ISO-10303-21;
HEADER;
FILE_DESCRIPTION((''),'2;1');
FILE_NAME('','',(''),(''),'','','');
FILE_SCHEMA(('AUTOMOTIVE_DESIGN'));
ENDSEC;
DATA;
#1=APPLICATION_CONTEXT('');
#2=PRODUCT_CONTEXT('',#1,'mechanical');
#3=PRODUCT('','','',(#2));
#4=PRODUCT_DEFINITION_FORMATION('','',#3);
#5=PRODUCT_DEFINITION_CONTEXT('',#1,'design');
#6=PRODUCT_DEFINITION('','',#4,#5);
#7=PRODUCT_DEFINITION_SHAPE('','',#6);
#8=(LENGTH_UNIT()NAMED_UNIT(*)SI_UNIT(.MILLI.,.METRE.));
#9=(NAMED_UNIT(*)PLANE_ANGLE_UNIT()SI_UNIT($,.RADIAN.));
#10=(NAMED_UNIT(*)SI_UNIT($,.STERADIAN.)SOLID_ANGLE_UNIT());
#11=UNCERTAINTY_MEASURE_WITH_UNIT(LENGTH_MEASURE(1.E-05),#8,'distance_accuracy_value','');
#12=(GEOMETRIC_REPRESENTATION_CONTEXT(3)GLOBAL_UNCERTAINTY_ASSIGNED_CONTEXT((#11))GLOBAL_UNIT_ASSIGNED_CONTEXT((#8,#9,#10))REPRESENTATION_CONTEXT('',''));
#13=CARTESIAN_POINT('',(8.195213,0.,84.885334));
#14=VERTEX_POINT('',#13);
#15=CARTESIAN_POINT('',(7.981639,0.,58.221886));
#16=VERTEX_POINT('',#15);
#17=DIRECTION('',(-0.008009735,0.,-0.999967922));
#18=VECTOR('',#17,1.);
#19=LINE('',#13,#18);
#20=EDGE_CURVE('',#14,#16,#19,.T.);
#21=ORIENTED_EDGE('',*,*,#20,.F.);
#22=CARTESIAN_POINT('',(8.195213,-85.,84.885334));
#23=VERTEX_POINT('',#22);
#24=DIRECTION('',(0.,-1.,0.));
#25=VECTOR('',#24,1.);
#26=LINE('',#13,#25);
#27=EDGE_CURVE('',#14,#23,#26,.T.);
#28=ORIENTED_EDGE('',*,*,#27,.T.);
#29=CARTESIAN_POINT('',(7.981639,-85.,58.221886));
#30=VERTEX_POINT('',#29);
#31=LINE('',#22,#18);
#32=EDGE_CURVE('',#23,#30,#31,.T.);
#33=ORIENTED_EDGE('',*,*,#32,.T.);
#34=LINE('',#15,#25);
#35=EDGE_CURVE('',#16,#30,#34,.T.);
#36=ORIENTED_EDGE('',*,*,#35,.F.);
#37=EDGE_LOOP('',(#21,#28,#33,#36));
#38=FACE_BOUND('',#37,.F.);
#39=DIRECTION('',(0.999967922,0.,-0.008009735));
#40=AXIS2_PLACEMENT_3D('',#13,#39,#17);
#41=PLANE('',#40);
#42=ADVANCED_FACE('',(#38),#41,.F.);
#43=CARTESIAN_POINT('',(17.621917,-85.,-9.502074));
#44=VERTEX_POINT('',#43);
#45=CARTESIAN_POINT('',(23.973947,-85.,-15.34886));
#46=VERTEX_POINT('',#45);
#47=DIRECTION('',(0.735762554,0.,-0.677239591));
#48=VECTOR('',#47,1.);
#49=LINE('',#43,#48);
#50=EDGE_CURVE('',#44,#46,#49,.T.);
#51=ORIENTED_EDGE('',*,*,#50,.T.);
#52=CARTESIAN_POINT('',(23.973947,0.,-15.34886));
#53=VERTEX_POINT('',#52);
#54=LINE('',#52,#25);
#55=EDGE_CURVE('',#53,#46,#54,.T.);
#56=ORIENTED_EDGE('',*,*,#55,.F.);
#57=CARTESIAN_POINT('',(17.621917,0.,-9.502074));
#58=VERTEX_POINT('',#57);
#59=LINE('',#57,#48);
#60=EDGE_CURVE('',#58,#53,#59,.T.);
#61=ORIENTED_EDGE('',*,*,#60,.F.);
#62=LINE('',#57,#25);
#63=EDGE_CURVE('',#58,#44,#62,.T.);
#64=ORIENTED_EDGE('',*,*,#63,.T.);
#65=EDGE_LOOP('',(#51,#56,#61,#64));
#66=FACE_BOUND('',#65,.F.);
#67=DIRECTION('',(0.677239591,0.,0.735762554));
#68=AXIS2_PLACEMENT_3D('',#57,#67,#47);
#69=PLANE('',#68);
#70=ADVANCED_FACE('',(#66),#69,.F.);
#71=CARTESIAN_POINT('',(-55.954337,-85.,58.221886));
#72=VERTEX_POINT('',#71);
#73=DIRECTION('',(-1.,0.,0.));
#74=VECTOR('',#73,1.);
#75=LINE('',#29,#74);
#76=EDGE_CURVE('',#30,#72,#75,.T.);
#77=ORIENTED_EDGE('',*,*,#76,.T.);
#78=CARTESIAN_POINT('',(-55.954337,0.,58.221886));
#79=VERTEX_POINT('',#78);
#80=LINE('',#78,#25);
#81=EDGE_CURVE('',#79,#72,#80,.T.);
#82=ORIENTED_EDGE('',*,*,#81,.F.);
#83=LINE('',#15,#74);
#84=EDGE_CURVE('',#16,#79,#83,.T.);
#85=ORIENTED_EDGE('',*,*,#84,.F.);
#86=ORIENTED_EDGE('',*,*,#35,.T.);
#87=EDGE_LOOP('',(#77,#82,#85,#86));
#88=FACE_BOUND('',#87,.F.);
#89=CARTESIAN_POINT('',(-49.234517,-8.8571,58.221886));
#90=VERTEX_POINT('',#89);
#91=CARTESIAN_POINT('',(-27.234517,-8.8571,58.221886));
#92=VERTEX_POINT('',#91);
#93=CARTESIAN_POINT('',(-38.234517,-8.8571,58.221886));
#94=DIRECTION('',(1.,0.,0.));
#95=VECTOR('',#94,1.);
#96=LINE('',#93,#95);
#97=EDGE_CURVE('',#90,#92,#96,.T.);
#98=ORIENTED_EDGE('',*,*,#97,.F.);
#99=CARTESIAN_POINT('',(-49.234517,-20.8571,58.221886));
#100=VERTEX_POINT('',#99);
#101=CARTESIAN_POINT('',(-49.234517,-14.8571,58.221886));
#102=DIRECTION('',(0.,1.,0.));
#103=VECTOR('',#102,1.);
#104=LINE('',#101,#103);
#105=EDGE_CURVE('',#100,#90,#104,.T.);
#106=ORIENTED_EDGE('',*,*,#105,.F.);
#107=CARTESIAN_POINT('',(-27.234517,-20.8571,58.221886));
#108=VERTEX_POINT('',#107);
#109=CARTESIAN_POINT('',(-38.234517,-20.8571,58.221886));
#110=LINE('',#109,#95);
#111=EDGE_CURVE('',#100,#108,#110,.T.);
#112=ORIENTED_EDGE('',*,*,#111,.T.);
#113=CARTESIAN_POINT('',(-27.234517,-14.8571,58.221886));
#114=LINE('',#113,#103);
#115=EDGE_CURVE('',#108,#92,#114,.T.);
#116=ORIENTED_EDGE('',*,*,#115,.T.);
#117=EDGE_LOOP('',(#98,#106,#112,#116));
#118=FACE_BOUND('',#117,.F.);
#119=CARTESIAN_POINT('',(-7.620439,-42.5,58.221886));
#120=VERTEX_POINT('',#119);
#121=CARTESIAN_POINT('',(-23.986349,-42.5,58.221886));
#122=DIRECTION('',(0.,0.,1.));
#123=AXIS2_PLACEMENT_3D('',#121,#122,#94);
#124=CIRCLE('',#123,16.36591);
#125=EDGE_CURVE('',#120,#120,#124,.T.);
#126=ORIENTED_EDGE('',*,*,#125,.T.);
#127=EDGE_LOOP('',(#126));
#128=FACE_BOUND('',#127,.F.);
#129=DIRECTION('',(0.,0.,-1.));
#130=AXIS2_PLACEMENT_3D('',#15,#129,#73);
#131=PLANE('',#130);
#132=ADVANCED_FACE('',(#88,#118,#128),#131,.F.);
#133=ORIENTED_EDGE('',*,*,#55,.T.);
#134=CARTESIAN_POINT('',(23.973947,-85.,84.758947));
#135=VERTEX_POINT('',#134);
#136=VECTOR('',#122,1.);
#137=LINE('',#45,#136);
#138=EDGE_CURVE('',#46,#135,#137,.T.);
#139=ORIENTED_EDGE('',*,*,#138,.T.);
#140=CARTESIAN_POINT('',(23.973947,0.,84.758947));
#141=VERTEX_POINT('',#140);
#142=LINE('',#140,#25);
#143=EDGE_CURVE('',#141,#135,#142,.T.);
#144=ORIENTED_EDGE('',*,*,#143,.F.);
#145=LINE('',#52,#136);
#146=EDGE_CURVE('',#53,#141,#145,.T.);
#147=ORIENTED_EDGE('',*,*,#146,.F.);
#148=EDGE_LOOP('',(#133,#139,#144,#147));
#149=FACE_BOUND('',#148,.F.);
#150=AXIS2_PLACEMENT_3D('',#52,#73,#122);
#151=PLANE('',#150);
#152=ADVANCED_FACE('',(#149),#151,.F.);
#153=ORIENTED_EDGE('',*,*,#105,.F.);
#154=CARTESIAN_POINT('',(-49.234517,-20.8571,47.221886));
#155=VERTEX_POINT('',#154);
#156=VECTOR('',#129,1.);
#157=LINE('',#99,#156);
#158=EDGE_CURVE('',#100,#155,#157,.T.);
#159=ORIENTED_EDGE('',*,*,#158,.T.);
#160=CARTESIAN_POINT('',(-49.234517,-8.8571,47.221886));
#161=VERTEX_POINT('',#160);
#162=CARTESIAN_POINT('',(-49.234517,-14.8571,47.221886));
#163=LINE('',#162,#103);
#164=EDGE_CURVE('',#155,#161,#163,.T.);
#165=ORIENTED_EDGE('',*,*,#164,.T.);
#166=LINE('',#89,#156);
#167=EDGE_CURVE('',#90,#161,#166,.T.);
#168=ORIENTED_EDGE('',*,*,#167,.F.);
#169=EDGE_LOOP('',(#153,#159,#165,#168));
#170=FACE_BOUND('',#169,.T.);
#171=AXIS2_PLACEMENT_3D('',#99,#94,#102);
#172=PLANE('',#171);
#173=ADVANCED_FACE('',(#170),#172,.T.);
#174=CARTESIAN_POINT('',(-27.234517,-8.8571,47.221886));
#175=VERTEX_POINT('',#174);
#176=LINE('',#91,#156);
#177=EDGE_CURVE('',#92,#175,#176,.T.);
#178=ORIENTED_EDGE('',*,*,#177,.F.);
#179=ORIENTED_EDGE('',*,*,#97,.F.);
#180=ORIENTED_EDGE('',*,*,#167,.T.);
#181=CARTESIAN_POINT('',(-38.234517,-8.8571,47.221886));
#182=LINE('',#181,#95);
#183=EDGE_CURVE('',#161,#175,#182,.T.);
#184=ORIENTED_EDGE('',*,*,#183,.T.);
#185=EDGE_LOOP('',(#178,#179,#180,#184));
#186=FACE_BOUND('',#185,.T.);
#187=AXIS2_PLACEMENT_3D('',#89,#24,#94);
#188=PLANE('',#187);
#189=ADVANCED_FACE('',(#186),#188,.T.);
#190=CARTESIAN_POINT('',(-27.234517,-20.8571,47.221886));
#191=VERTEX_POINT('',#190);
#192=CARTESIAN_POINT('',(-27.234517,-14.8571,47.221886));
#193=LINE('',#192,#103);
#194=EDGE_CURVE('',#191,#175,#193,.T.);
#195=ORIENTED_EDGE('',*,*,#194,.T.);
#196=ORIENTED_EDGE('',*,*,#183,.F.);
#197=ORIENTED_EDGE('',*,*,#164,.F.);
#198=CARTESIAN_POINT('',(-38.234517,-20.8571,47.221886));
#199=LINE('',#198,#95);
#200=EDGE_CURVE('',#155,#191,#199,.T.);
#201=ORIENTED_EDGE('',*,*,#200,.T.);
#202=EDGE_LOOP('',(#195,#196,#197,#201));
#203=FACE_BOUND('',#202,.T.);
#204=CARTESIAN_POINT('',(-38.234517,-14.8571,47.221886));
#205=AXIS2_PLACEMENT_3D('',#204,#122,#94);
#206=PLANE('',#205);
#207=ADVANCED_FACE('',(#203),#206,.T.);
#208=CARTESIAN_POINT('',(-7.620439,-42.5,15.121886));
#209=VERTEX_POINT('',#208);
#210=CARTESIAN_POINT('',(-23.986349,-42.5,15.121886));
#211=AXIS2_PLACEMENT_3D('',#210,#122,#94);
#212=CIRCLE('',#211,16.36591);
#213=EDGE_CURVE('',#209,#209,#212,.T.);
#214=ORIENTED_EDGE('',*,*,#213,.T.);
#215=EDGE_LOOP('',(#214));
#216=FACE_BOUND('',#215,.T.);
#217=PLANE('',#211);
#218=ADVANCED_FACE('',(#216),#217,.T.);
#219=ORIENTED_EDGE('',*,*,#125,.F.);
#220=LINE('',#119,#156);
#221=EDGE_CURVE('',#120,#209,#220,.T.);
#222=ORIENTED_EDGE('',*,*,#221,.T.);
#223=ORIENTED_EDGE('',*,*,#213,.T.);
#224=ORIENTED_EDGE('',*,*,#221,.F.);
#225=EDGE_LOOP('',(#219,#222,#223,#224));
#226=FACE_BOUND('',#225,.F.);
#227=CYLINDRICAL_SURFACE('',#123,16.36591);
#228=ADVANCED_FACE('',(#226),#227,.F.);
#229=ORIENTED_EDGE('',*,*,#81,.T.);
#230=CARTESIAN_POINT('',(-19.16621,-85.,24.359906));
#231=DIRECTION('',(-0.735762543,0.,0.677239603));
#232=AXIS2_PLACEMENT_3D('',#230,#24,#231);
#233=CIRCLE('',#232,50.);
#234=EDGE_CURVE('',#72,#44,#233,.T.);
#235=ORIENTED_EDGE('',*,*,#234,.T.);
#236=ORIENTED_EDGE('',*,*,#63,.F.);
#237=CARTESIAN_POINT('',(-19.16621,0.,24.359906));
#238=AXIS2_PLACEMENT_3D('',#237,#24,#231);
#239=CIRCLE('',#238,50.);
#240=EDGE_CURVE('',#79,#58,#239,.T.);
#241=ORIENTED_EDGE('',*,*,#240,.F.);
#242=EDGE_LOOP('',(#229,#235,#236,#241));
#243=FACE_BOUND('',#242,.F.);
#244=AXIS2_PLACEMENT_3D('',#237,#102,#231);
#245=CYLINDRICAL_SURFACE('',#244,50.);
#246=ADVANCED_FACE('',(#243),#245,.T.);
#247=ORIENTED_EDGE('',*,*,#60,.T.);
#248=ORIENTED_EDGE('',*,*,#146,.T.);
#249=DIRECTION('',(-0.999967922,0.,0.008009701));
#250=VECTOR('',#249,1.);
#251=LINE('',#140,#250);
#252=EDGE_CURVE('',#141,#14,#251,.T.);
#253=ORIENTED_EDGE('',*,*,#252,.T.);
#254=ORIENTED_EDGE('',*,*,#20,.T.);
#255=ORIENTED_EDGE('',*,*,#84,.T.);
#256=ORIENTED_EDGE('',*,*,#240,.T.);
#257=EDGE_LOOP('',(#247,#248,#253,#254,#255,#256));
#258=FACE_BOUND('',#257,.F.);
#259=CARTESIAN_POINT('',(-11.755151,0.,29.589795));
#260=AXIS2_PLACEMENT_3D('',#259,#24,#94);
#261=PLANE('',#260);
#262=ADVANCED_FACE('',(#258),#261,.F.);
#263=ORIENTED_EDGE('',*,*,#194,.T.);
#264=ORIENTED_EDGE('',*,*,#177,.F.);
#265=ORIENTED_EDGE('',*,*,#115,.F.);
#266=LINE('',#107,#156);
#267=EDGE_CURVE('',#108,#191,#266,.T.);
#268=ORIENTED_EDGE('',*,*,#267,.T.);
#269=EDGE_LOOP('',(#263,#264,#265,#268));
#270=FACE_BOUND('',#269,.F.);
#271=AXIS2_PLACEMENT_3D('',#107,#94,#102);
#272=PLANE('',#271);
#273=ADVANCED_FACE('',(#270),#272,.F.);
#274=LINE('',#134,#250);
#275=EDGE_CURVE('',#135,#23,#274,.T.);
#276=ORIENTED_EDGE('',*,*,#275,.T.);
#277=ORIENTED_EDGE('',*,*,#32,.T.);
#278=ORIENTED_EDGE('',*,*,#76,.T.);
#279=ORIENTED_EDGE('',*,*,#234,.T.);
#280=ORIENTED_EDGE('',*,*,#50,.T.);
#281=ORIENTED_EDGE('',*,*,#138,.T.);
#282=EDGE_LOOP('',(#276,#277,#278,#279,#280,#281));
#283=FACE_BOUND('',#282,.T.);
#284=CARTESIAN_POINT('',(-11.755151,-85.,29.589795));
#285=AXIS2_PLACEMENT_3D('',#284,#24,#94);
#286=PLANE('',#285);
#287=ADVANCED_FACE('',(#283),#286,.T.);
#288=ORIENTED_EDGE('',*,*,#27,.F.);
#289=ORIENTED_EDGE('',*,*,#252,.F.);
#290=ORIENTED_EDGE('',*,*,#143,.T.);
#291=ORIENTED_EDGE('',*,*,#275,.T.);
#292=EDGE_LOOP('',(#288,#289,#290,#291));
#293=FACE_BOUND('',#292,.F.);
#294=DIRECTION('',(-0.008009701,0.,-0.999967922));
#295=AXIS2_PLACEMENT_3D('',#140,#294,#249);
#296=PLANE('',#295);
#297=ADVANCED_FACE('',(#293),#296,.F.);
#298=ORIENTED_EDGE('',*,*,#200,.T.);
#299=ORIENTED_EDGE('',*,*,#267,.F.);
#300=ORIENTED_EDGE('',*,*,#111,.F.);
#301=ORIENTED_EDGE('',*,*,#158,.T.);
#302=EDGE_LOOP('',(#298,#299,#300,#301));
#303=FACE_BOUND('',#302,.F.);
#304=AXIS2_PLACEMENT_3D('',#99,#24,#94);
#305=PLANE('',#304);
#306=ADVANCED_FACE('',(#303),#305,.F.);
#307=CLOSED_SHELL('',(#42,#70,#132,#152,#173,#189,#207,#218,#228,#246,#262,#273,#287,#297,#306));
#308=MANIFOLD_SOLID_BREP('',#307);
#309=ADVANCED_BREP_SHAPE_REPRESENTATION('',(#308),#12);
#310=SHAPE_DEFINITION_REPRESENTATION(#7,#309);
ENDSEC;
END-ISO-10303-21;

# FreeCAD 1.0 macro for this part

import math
import FreeCAD as App
import Part
import Sketcher


def add_polygon(sketch, points):
    """Adds a closed chain of lines whose ends are joined by coincident constraints."""
    first, n = sketch.GeometryCount, len(points)
    for a, b in zip(points, points[1:] + points[:1]):
        sketch.addGeometry(Part.LineSegment(App.Vector(*a, 0), App.Vector(*b, 0)), False)
    for i in range(n):
        sketch.addConstraint(Sketcher.Constraint("Coincident", first + i, 2, first + (i + 1) % n, 1))

doc = App.newDocument("Part")
body = doc.addObject("PartDesign::Body", "Body")

# Sketch on XZ plane
sketch1 = doc.addObject("Sketcher::SketchObject", "Sketch")
body.addObject(sketch1)
sketch1.AttachmentSupport = (doc.XZ_Plane, [""])
sketch1.MapMode = "FlatFace"
sketch1.addGeometry([
    Part.ArcOfCircle(Part.Circle(App.Vector(-19, 24, 0), App.Vector(0, 0, 1), 50), math.radians(137), math.radians(317)),  # 0
    Part.LineSegment(App.Vector(18, -10, 0), App.Vector(24, -15, 0)),  # 1
    Part.LineSegment(App.Vector(24, -15, 0), App.Vector(24, 85, 0)),  # 2
    Part.LineSegment(App.Vector(24, 85, 0), App.Vector(8, 85, 0)),  # 3
    Part.LineSegment(App.Vector(8, 85, 0), App.Vector(8, 58, 0)),  # 4
    Part.LineSegment(App.Vector(8, 58, 0), App.Vector(-56, 58, 0)),  # 5
], False)
sketch1.addConstraint([
    Sketcher.Constraint("Coincident", 0, 2, 1, 1),
    Sketcher.Constraint("Coincident", 1, 2, 2, 1),
    Sketcher.Constraint("Coincident", 2, 2, 3, 1),
    Sketcher.Constraint("Coincident", 3, 2, 4, 1),
    Sketcher.Constraint("Coincident", 4, 2, 5, 1),
    Sketcher.Constraint("Coincident", 5, 2, 0, 1),
    Sketcher.Constraint("Vertical", 2),
    Sketcher.Constraint("Horizontal", 5),
    Sketcher.Constraint("Perpendicular", 3, 4),
    Sketcher.Constraint("Radius", 0, 50.0),
    Sketcher.Constraint("Distance", 1, 8.633261),
    Sketcher.Constraint("Distance", 3, 15.77924),
    Sketcher.Constraint("DistanceX", 5, 2, 5, 1, 63.935976),
    Sketcher.Constraint("DistanceY", 2, 1, 2, 2, 100.107807),
    Sketcher.Constraint("DistanceX", 0, 3, -1, 1, 19.16621),
    Sketcher.Constraint("DistanceY", 1, 2, -1, 1, 15.34886),
    Sketcher.Constraint("DistanceX", -1, 1, 4, 2, 7.981639),
    Sketcher.Constraint("DistanceY", 0, 2, 0, 3, 33.86198),
    Sketcher.Constraint("DistanceX", 0, 2, 1, 2, 6.35203),
])
pad1 = doc.addObject("PartDesign::Pad", "Pad")
body.addObject(pad1)
pad1.Profile = sketch1
pad1.Length = 85

# Sketch on XY plane
sketch2 = doc.addObject("Sketcher::SketchObject", "Sketch001")
body.addObject(sketch2)
sketch2.AttachmentSupport = (doc.XY_Plane, [""])
sketch2.MapMode = "FlatFace"
sketch2.AttachmentOffset = App.Placement(App.Vector(0, 0, 58.221886), App.Rotation())
sketch2.addGeometry(Part.Circle(App.Vector(-24, -42, 0), App.Vector(0, 0, 1), 16), False)
sketch2.addConstraint([
    Sketcher.Constraint("DistanceY", 0, 3, -1, 1, 42.5),
    Sketcher.Constraint("Diameter", 0, 32.73182),
    Sketcher.Constraint("DistanceX", 0, 3, -1, 1, 23.986349),
])
pocket1 = doc.addObject("PartDesign::Pocket", "Pocket")
body.addObject(pocket1)
pocket1.Profile = sketch2
pocket1.Length = 43.1

# Sketch on XY plane
sketch3 = doc.addObject("Sketcher::SketchObject", "Sketch002")
body.addObject(sketch3)
sketch3.AttachmentSupport = (doc.XY_Plane, [""])
sketch3.MapMode = "FlatFace"
sketch3.AttachmentOffset = App.Placement(App.Vector(0, 0, 58.221886), App.Rotation())
add_polygon(sketch3, [(-49, -9), (-49, -21), (-27, -21), (-27, -9)])  # lines 0-3
sketch3.addConstraint([
    Sketcher.Constraint("Vertical", 0),
    Sketcher.Constraint("Horizontal", 1),
    Sketcher.Constraint("Vertical", 2),
    Sketcher.Constraint("Horizontal", 3),
    Sketcher.Constraint("DistanceX", 1, 1, 1, 2, 22.0),
    Sketcher.Constraint("DistanceY", 0, 2, 0, 1, 12.0),
    Sketcher.Constraint("DistanceY", 0, 2, -1, 1, 20.8571),
    Sketcher.Constraint("DistanceX", 0, 2, -1, 1, 49.234517),
])
pocket2 = doc.addObject("PartDesign::Pocket", "Pocket001")
body.addObject(pocket2)
pocket2.Profile = sketch3
pocket2.Length = 11

doc.recompute()
